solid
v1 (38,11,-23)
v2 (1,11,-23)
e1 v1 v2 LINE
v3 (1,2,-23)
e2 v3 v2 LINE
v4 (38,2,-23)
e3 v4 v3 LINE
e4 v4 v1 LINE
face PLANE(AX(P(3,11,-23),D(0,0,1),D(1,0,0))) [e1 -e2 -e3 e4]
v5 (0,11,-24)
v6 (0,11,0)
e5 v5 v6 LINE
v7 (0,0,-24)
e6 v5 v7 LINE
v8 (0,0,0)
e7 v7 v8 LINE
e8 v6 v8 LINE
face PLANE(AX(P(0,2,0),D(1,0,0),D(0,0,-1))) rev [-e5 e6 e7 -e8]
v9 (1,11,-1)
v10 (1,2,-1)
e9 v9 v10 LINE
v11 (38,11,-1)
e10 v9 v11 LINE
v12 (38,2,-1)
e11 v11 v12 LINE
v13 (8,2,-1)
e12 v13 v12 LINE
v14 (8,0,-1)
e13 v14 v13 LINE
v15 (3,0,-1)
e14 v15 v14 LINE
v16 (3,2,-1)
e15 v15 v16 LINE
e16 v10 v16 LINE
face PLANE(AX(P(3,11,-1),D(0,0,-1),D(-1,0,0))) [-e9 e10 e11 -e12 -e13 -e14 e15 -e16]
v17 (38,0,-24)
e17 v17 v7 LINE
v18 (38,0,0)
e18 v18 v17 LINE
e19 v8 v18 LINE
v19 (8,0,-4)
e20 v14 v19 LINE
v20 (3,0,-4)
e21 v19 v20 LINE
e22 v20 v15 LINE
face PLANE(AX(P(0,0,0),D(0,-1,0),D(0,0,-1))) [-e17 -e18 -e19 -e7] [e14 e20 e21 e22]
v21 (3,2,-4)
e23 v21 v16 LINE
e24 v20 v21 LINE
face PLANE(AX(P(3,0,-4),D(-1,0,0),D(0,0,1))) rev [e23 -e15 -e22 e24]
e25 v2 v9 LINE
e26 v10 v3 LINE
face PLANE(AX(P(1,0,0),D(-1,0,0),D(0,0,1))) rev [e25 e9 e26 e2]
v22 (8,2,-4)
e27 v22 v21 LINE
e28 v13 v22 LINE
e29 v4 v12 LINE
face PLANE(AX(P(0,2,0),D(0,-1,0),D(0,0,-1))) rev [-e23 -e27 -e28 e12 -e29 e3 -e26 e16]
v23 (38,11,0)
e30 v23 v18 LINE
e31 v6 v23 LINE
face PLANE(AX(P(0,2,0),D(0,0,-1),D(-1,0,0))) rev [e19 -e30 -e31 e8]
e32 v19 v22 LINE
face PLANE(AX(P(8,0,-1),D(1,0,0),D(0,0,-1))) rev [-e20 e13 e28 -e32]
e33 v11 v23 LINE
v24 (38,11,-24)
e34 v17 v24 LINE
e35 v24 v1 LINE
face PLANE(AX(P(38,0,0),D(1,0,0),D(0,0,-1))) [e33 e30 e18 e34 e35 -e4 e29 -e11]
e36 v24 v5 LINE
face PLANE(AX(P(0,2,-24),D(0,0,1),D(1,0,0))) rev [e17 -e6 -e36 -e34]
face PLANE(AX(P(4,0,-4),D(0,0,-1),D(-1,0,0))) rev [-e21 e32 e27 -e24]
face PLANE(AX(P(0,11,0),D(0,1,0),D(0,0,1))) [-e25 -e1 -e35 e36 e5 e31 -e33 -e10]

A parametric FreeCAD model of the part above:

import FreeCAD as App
import Part
import Sketcher

V = App.Vector
Q = App.Units.Quantity

doc = App.newDocument("Part")
body = doc.addObject("PartDesign::Body", "Body")

# Sketch on XZ plane
sketch1 = body.newObject("Sketcher::SketchObject", "Sketch")
sketch1.AttachmentSupport = (doc.getObject("XZ_Plane"), [""])
sketch1.MapMode = "FlatFace"
sketch1.addGeometry([
    Part.LineSegment(V(0, -24, 0), V(0, 0, 0)),
    Part.LineSegment(V(0, 0, 0), V(40, 0, 0)),
    Part.LineSegment(V(40, 0, 0), V(40, -24, 0)),
    Part.LineSegment(V(40, -24, 0), V(0, -24, 0)),
], False)
sketch1.addConstraint([
    Sketcher.Constraint("Coincident", 0, 2, 1, 1),
    Sketcher.Constraint("Coincident", 1, 2, 2, 1),
    Sketcher.Constraint("Coincident", 2, 2, 3, 1),
    Sketcher.Constraint("Coincident", 3, 2, 0, 1),
    Sketcher.Constraint("Vertical", 0),
    Sketcher.Constraint("Horizontal", 1),
    Sketcher.Constraint("Vertical", 2),
    Sketcher.Constraint("Horizontal", 3),
    Sketcher.Constraint("Coincident", 0, 2, -1, 1),
    Sketcher.Constraint("DistanceX", 1, 1, 1, 2, Q("40 mm")),
    Sketcher.Constraint("DistanceY", 0, 1, 0, 2, Q("24 mm")),
])
pad1 = body.newObject("PartDesign::Pad", "Pad")
pad1.Profile = sketch1
pad1.Length = 2
pad1.Reversed = True

# Sketch on XZ plane
sketch2 = body.newObject("Sketcher::SketchObject", "Sketch001")
sketch2.AttachmentSupport = (doc.getObject("XZ_Plane"), [""])
sketch2.MapMode = "FlatFace"
sketch2.AttachmentOffset = App.Placement(V(0, 0, -2), App.Rotation())
sketch2.addGeometry([
    Part.LineSegment(V(0, -24, 0), V(0, 0, 0)),  # 0
    Part.LineSegment(V(0, 0, 0), V(40, 0, 0)),  # 1
    Part.LineSegment(V(40, 0, 0), V(40, -24, 0)),  # 2
    Part.LineSegment(V(40, -24, 0), V(0, -24, 0)),  # 3
    Part.LineSegment(V(39, -1, 0), V(3, -1, 0)),  # 4
    Part.LineSegment(V(3, -1, 0), V(3, -23, 0)),  # 5
    Part.LineSegment(V(3, -23, 0), V(39, -23, 0)),  # 6
    Part.LineSegment(V(39, -23, 0), V(39, -1, 0)),  # 7
], False)
sketch2.addConstraint([
    Sketcher.Constraint("Coincident", 0, 2, 1, 1),
    Sketcher.Constraint("Coincident", 1, 2, 2, 1),
    Sketcher.Constraint("Coincident", 2, 2, 3, 1),
    Sketcher.Constraint("Coincident", 3, 2, 0, 1),
    Sketcher.Constraint("Coincident", 4, 2, 5, 1),
    Sketcher.Constraint("Coincident", 5, 2, 6, 1),
    Sketcher.Constraint("Coincident", 6, 2, 7, 1),
    Sketcher.Constraint("Coincident", 7, 2, 4, 1),
    Sketcher.Constraint("Vertical", 0),
    Sketcher.Constraint("Horizontal", 1),
    Sketcher.Constraint("Vertical", 2),
    Sketcher.Constraint("Horizontal", 3),
    Sketcher.Constraint("Horizontal", 4),
    Sketcher.Constraint("Vertical", 5),
    Sketcher.Constraint("Horizontal", 6),
    Sketcher.Constraint("Vertical", 7),
    Sketcher.Constraint("Coincident", 0, 2, -1, 1),
    Sketcher.Constraint("DistanceX", 1, 1, 1, 2, Q("40 mm")),
    Sketcher.Constraint("DistanceX", 4, 2, 4, 1, Q("36 mm")),
    Sketcher.Constraint("DistanceY", 0, 1, 0, 2, Q("24 mm")),
    Sketcher.Constraint("DistanceY", 5, 2, 5, 1, Q("22 mm")),
    Sketcher.Constraint("DistanceX", -1, 1, 4, 2, Q("3 mm")),
    Sketcher.Constraint("DistanceY", 4, 2, -1, 1, Q("1 mm")),
])
pad2 = body.newObject("PartDesign::Pad", "Pad001")
pad2.Profile = sketch2
pad2.Length = 9
pad2.Reversed = True

# Sketch on XZ plane
sketch3 = body.newObject("Sketcher::SketchObject", "Sketch002")
sketch3.AttachmentSupport = (doc.getObject("XZ_Plane"), [""])
sketch3.MapMode = "FlatFace"
sketch3.AttachmentOffset = App.Placement(V(0, 0, -2), App.Rotation())
sketch3.addGeometry([
    Part.LineSegment(V(4, -4, 0), V(4, -1, 0)),
    Part.LineSegment(V(4, -1, 0), V(8, -1, 0)),
    Part.LineSegment(V(8, -1, 0), V(8, -4, 0)),
    Part.LineSegment(V(8, -4, 0), V(4, -4, 0)),
], False)
sketch3.addConstraint([
    Sketcher.Constraint("Coincident", 0, 2, 1, 1),
    Sketcher.Constraint("Coincident", 1, 2, 2, 1),
    Sketcher.Constraint("Coincident", 2, 2, 3, 1),
    Sketcher.Constraint("Coincident", 3, 2, 0, 1),
    Sketcher.Constraint("Vertical", 0),
    Sketcher.Constraint("Horizontal", 1),
    Sketcher.Constraint("Vertical", 2),
    Sketcher.Constraint("Horizontal", 3),
    Sketcher.Constraint("DistanceX", 1, 1, 1, 2, Q("4 mm")),
    Sketcher.Constraint("DistanceY", 0, 1, 0, 2, Q("3 mm")),
    Sketcher.Constraint("DistanceX", -1, 1, 0, 2, Q("4 mm")),
    Sketcher.Constraint("DistanceY", 0, 2, -1, 1, Q("1 mm")),
])
pocket1 = body.newObject("PartDesign::Pocket", "Pocket")
pocket1.Profile = sketch3
pocket1.Length = 2
pocket1.Reversed = True

# Sketch on YZ plane
sketch4 = body.newObject("Sketcher::SketchObject", "Sketch003")
sketch4.AttachmentSupport = (doc.getObject("YZ_Plane"), [""])
sketch4.MapMode = "FlatFace"
sketch4.AttachmentOffset = App.Placement(V(0, 0, 40), App.Rotation())
sketch4.addGeometry([
    Part.LineSegment(V(11, 0, 0), V(0, 0, 0)),
    Part.LineSegment(V(0, 0, 0), V(0, -24, 0)),
    Part.LineSegment(V(0, -24, 0), V(11, -24, 0)),
    Part.LineSegment(V(11, -24, 0), V(11, 0, 0)),
], False)
sketch4.addConstraint([
    Sketcher.Constraint("Coincident", 0, 2, 1, 1),
    Sketcher.Constraint("Coincident", 1, 2, 2, 1),
    Sketcher.Constraint("Coincident", 2, 2, 3, 1),
    Sketcher.Constraint("Coincident", 3, 2, 0, 1),
    Sketcher.Constraint("Horizontal", 0),
    Sketcher.Constraint("Vertical", 1),
    Sketcher.Constraint("Horizontal", 2),
    Sketcher.Constraint("Vertical", 3),
    Sketcher.Constraint("Coincident", 0, 2, -1, 1),
    Sketcher.Constraint("DistanceX", 0, 2, 0, 1, Q("11 mm")),
    Sketcher.Constraint("DistanceY", 1, 2, 1, 1, Q("24 mm")),
])
pocket2 = body.newObject("PartDesign::Pocket", "Pocket001")
pocket2.Profile = sketch4
pocket2.Length = 2

# Sketch on YZ plane
sketch5 = body.newObject("Sketcher::SketchObject", "Sketch004")
sketch5.AttachmentSupport = (doc.getObject("YZ_Plane"), [""])
sketch5.MapMode = "FlatFace"
sketch5.AttachmentOffset = App.Placement(V(0, 0, 3), App.Rotation())
sketch5.addGeometry([
    Part.LineSegment(V(11, -1, 0), V(2, -1, 0)),
    Part.LineSegment(V(2, -1, 0), V(2, -23, 0)),
    Part.LineSegment(V(2, -23, 0), V(11, -23, 0)),
    Part.LineSegment(V(11, -23, 0), V(11, -1, 0)),
], False)
sketch5.addConstraint([
    Sketcher.Constraint("Coincident", 0, 2, 1, 1),
    Sketcher.Constraint("Coincident", 1, 2, 2, 1),
    Sketcher.Constraint("Coincident", 2, 2, 3, 1),
    Sketcher.Constraint("Coincident", 3, 2, 0, 1),
    Sketcher.Constraint("Horizontal", 0),
    Sketcher.Constraint("Vertical", 1),
    Sketcher.Constraint("Horizontal", 2),
    Sketcher.Constraint("Vertical", 3),
    Sketcher.Constraint("DistanceX", 0, 2, 0, 1, Q("9 mm")),
    Sketcher.Constraint("DistanceY", 1, 2, 1, 1, Q("22 mm")),
    Sketcher.Constraint("DistanceX", -1, 1, 0, 2, Q("2 mm")),
    Sketcher.Constraint("DistanceY", 0, 2, -1, 1, Q("1 mm")),
])
pocket3 = body.newObject("PartDesign::Pocket", "Pocket002")
pocket3.Profile = sketch5
pocket3.Length = 2

# Sketch on XZ plane
sketch6 = body.newObject("Sketcher::SketchObject", "Sketch005")
sketch6.AttachmentSupport = (doc.getObject("XZ_Plane"), [""])
sketch6.MapMode = "FlatFace"
sketch6.AttachmentOffset = App.Placement(V(0, 0, -2), App.Rotation())
sketch6.addGeometry([
    Part.LineSegment(V(3, -4, 0), V(3, -1, 0)),
    Part.LineSegment(V(3, -1, 0), V(4, -1, 0)),
    Part.LineSegment(V(4, -1, 0), V(4, -4, 0)),
    Part.LineSegment(V(4, -4, 0), V(3, -4, 0)),
], False)
sketch6.addConstraint([
    Sketcher.Constraint("Coincident", 0, 2, 1, 1),
    Sketcher.Constraint("Coincident", 1, 2, 2, 1),
    Sketcher.Constraint("Coincident", 2, 2, 3, 1),
    Sketcher.Constraint("Coincident", 3, 2, 0, 1),
    Sketcher.Constraint("Vertical", 0),
    Sketcher.Constraint("Horizontal", 1),
    Sketcher.Constraint("Vertical", 2),
    Sketcher.Constraint("Horizontal", 3),
    Sketcher.Constraint("DistanceX", 1, 1, 1, 2, Q("1 mm")),
    Sketcher.Constraint("DistanceY", 0, 1, 0, 2, Q("3 mm")),
    Sketcher.Constraint("DistanceX", -1, 1, 0, 2, Q("3 mm")),
    Sketcher.Constraint("DistanceY", 0, 2, -1, 1, Q("1 mm")),
])
pocket4 = body.newObject("PartDesign::Pocket", "Pocket003")
pocket4.Profile = sketch6
pocket4.Length = 2
pocket4.Reversed = True

doc.recompute()
